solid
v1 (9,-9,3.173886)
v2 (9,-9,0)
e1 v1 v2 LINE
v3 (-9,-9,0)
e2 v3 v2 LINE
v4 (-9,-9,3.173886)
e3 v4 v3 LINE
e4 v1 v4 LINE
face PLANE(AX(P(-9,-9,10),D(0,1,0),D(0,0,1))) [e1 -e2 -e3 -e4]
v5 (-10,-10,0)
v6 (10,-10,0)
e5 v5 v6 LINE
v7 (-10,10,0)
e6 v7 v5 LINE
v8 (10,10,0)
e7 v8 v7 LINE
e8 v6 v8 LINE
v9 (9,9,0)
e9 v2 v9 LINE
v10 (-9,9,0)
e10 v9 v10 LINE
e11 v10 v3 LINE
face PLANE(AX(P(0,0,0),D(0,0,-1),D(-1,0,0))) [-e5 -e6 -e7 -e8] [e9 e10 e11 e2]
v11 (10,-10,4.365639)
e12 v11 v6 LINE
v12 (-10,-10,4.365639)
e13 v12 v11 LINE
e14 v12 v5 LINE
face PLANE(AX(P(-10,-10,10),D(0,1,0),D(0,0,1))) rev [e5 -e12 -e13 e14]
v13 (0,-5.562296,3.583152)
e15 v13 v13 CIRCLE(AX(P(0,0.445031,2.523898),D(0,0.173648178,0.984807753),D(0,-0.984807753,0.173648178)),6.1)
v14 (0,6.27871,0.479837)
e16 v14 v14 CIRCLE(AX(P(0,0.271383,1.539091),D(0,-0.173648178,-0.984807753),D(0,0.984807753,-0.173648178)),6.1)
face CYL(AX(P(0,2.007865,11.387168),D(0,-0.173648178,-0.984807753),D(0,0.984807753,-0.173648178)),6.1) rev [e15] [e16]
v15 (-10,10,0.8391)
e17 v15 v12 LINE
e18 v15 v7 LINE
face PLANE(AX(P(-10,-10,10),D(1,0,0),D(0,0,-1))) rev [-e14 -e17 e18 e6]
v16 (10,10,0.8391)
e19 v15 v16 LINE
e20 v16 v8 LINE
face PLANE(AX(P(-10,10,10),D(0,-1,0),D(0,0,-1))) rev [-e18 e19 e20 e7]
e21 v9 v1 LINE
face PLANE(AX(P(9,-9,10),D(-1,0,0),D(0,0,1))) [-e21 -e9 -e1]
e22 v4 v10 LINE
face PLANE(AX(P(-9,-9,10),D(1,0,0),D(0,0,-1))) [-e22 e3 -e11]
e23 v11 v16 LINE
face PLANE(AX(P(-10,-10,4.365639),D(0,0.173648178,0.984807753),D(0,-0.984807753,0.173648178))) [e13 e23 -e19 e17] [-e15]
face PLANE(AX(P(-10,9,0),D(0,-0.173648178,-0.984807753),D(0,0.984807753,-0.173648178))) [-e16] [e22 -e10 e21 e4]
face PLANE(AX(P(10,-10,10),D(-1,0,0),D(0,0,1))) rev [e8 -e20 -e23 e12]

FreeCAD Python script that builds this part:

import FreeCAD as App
import Part
import Sketcher

V = App.Vector
Q = App.Units.Quantity

doc = App.newDocument("Part")
body = doc.addObject("PartDesign::Body", "Body")

# Sketch on XY plane
sketch1 = doc.addObject("Sketcher::SketchObject", "Sketch")
body.addObject(sketch1)
sketch1.AttachmentSupport = (doc.XY_Plane, [""])
sketch1.MapMode = "FlatFace"
sketch1.addGeometry([
    Part.LineSegment(V(-10, 10, 0), V(-10, -10, 0)),  # 0
    Part.LineSegment(V(-10, -10, 0), V(10, -10, 0)),  # 1
    Part.LineSegment(V(10, -10, 0), V(10, 10, 0)),  # 2
    Part.LineSegment(V(10, 10, 0), V(-10, 10, 0)),  # 3
    Part.LineSegment(V(9, -9, 0), V(-9, -9, 0)),  # 4
    Part.LineSegment(V(-9, -9, 0), V(-9, 9, 0)),  # 5
    Part.LineSegment(V(-9, 9, 0), V(9, 9, 0)),  # 6
    Part.LineSegment(V(9, 9, 0), V(9, -9, 0)),  # 7
], False)
sketch1.addConstraint([
    Sketcher.Constraint("Coincident", 0, 2, 1, 1),
    Sketcher.Constraint("Coincident", 1, 2, 2, 1),
    Sketcher.Constraint("Coincident", 2, 2, 3, 1),
    Sketcher.Constraint("Coincident", 3, 2, 0, 1),
    Sketcher.Constraint("Coincident", 4, 2, 5, 1),
    Sketcher.Constraint("Coincident", 5, 2, 6, 1),
    Sketcher.Constraint("Coincident", 6, 2, 7, 1),
    Sketcher.Constraint("Coincident", 7, 2, 4, 1),
    Sketcher.Constraint("Vertical", 0),
    Sketcher.Constraint("Horizontal", 1),
    Sketcher.Constraint("Vertical", 2),
    Sketcher.Constraint("Horizontal", 3),
    Sketcher.Constraint("Horizontal", 4),
    Sketcher.Constraint("Vertical", 5),
    Sketcher.Constraint("Horizontal", 6),
    Sketcher.Constraint("Vertical", 7),
    Sketcher.Constraint("Symmetric", 0, 2, 2, 2, -1, 1),
    Sketcher.Constraint("Symmetric", 4, 2, 6, 2, -1, 1),
    Sketcher.Constraint("Equal", 3, 0),
    Sketcher.Constraint("Equal", 6, 5),
    Sketcher.Constraint("DistanceX", 1, 1, 1, 2, 20.0),
    Sketcher.Constraint("DistanceX", 4, 2, 4, 1, 18.0),
])
pad1 = doc.addObject("PartDesign::Pad", "Pad")
body.addObject(pad1)
pad1.Profile = sketch1
pad1.Length = 10

# Sketch on YZ plane
sketch2 = doc.addObject("Sketcher::SketchObject", "Sketch001")
body.addObject(sketch2)
sketch2.AttachmentSupport = (doc.YZ_Plane, [""])
sketch2.MapMode = "FlatFace"
sketch2.AttachmentOffset = App.Placement(V(0, 0, 10), App.Rotation())
sketch2.addGeometry([
    Part.LineSegment(V(-10, 3.350213, 0), V(9, 0, 0)),
    Part.LineSegment(V(9, 0, 0), V(9, 1.015427, 0)),
    Part.LineSegment(V(9, 1.015427, 0), V(-10, 4.365639, 0)),
    Part.LineSegment(V(-10, 4.365639, 0), V(-10, 3.350213, 0)),
], False)
sketch2.addConstraint([
    Sketcher.Constraint("Coincident", 0, 2, 1, 1),
    Sketcher.Constraint("Coincident", 1, 2, 2, 1),
    Sketcher.Constraint("Coincident", 2, 2, 3, 1),
    Sketcher.Constraint("Coincident", 3, 2, 0, 1),
    Sketcher.Constraint("Vertical", 1),
    Sketcher.Constraint("Vertical", 3),
    Sketcher.Constraint("PointOnObject", 0, 2, -1),
    Sketcher.Constraint("Parallel", 0, 2),
    Sketcher.Constraint("Angle", 0, Q("-10 deg")),
    Sketcher.Constraint("DistanceX", -1, 1, 0, 2, 9.0),
    Sketcher.Constraint("DistanceX", 2, 2, -1, 1, 10.0),
    Sketcher.Constraint("DistanceY", 1, 1, 1, 2, 1.015427),
])
pad2 = doc.addObject("PartDesign::Pad", "Pad001")
body.addObject(pad2)
pad2.Profile = sketch2
pad2.Length = 19
pad2.Reversed = True

# Sketch on YZ plane
sketch3 = doc.addObject("Sketcher::SketchObject", "Sketch002")
body.addObject(sketch3)
sketch3.AttachmentSupport = (doc.YZ_Plane, [""])
sketch3.MapMode = "FlatFace"
sketch3.AttachmentOffset = App.Placement(V(0, 0, -10), App.Rotation())
sketch3.addGeometry([
    Part.LineSegment(V(63.176131, -8.537287, 0), V(10, 0.8391, 0)),  # 0
    Part.LineSegment(V(10, 0.8391, 0), V(-10, 4.365639, 0)),  # 1
    Part.LineSegment(V(-10, 4.365639, 0), V(-63.176131, 13.742026, 0)),  # 2
    Part.LineSegment(V(-63.176131, 13.742026, 0), V(-44.423358, 120.094288, 0)),  # 3
    Part.LineSegment(V(-44.423358, 120.094288, 0), V(81.928905, 97.814975, 0)),  # 4
    Part.LineSegment(V(81.928905, 97.814975, 0), V(63.176131, -8.537287, 0)),  # 5
], False)
sketch3.addConstraint([
    Sketcher.Constraint("Coincident", 0, 2, 1, 1),
    Sketcher.Constraint("Coincident", 1, 2, 2, 1),
    Sketcher.Constraint("Coincident", 2, 2, 3, 1),
    Sketcher.Constraint("Coincident", 3, 2, 4, 1),
    Sketcher.Constraint("Coincident", 4, 2, 5, 1),
    Sketcher.Constraint("Coincident", 5, 2, 0, 1),
    Sketcher.Constraint("Parallel", 0, 1),
    Sketcher.Constraint("Parallel", 1, 2),
    Sketcher.Constraint("Perpendicular", 2, 3),
    Sketcher.Constraint("Perpendicular", 3, 4),
    Sketcher.Constraint("Perpendicular", 4, 5),
    Sketcher.Constraint("Equal", 0, 2),
    Sketcher.Constraint("Angle", 0, Q("170 deg")),
    Sketcher.Constraint("DistanceX", -1, 1, 0, 2, 10.0),
    Sketcher.Constraint("DistanceX", 1, 2, -1, 1, 10.0),
    Sketcher.Constraint("DistanceY", -1, 1, 0, 2, 0.8391),
    Sketcher.Constraint("Distance", 0, 53.996459),
    Sketcher.Constraint("DistanceY", -1, 1, 3, 2, 120.094288),
])
pocket1 = doc.addObject("PartDesign::Pocket", "Pocket")
body.addObject(pocket1)
pocket1.Profile = sketch3
pocket1.Type = "ThroughAll"
pocket1.Midplane = True

# Sketch on an angled plane
sketch4 = doc.addObject("Sketcher::SketchObject", "Sketch003")
body.addObject(sketch4)
sketch4.Placement = App.Placement(V(0, 0.271383, 1.539091), App.Rotation(V(-1, 0, 0), V(0, 0.984807753, -0.173648178), V(0, -0.173648178, -0.984807753), "ZXY"))
sketch4.addGeometry(Part.Circle(V(0, 0, 0), V(0, 0, 1), 6.1), False)
sketch4.addConstraint([
    Sketcher.Constraint("Coincident", 0, 3, -1, 1),
    Sketcher.Constraint("Diameter", 0, 12.2),
])
pocket2 = doc.addObject("PartDesign::Pocket", "Pocket001")
body.addObject(pocket2)
pocket2.Profile = sketch4
pocket2.Length = 10

doc.recompute()
